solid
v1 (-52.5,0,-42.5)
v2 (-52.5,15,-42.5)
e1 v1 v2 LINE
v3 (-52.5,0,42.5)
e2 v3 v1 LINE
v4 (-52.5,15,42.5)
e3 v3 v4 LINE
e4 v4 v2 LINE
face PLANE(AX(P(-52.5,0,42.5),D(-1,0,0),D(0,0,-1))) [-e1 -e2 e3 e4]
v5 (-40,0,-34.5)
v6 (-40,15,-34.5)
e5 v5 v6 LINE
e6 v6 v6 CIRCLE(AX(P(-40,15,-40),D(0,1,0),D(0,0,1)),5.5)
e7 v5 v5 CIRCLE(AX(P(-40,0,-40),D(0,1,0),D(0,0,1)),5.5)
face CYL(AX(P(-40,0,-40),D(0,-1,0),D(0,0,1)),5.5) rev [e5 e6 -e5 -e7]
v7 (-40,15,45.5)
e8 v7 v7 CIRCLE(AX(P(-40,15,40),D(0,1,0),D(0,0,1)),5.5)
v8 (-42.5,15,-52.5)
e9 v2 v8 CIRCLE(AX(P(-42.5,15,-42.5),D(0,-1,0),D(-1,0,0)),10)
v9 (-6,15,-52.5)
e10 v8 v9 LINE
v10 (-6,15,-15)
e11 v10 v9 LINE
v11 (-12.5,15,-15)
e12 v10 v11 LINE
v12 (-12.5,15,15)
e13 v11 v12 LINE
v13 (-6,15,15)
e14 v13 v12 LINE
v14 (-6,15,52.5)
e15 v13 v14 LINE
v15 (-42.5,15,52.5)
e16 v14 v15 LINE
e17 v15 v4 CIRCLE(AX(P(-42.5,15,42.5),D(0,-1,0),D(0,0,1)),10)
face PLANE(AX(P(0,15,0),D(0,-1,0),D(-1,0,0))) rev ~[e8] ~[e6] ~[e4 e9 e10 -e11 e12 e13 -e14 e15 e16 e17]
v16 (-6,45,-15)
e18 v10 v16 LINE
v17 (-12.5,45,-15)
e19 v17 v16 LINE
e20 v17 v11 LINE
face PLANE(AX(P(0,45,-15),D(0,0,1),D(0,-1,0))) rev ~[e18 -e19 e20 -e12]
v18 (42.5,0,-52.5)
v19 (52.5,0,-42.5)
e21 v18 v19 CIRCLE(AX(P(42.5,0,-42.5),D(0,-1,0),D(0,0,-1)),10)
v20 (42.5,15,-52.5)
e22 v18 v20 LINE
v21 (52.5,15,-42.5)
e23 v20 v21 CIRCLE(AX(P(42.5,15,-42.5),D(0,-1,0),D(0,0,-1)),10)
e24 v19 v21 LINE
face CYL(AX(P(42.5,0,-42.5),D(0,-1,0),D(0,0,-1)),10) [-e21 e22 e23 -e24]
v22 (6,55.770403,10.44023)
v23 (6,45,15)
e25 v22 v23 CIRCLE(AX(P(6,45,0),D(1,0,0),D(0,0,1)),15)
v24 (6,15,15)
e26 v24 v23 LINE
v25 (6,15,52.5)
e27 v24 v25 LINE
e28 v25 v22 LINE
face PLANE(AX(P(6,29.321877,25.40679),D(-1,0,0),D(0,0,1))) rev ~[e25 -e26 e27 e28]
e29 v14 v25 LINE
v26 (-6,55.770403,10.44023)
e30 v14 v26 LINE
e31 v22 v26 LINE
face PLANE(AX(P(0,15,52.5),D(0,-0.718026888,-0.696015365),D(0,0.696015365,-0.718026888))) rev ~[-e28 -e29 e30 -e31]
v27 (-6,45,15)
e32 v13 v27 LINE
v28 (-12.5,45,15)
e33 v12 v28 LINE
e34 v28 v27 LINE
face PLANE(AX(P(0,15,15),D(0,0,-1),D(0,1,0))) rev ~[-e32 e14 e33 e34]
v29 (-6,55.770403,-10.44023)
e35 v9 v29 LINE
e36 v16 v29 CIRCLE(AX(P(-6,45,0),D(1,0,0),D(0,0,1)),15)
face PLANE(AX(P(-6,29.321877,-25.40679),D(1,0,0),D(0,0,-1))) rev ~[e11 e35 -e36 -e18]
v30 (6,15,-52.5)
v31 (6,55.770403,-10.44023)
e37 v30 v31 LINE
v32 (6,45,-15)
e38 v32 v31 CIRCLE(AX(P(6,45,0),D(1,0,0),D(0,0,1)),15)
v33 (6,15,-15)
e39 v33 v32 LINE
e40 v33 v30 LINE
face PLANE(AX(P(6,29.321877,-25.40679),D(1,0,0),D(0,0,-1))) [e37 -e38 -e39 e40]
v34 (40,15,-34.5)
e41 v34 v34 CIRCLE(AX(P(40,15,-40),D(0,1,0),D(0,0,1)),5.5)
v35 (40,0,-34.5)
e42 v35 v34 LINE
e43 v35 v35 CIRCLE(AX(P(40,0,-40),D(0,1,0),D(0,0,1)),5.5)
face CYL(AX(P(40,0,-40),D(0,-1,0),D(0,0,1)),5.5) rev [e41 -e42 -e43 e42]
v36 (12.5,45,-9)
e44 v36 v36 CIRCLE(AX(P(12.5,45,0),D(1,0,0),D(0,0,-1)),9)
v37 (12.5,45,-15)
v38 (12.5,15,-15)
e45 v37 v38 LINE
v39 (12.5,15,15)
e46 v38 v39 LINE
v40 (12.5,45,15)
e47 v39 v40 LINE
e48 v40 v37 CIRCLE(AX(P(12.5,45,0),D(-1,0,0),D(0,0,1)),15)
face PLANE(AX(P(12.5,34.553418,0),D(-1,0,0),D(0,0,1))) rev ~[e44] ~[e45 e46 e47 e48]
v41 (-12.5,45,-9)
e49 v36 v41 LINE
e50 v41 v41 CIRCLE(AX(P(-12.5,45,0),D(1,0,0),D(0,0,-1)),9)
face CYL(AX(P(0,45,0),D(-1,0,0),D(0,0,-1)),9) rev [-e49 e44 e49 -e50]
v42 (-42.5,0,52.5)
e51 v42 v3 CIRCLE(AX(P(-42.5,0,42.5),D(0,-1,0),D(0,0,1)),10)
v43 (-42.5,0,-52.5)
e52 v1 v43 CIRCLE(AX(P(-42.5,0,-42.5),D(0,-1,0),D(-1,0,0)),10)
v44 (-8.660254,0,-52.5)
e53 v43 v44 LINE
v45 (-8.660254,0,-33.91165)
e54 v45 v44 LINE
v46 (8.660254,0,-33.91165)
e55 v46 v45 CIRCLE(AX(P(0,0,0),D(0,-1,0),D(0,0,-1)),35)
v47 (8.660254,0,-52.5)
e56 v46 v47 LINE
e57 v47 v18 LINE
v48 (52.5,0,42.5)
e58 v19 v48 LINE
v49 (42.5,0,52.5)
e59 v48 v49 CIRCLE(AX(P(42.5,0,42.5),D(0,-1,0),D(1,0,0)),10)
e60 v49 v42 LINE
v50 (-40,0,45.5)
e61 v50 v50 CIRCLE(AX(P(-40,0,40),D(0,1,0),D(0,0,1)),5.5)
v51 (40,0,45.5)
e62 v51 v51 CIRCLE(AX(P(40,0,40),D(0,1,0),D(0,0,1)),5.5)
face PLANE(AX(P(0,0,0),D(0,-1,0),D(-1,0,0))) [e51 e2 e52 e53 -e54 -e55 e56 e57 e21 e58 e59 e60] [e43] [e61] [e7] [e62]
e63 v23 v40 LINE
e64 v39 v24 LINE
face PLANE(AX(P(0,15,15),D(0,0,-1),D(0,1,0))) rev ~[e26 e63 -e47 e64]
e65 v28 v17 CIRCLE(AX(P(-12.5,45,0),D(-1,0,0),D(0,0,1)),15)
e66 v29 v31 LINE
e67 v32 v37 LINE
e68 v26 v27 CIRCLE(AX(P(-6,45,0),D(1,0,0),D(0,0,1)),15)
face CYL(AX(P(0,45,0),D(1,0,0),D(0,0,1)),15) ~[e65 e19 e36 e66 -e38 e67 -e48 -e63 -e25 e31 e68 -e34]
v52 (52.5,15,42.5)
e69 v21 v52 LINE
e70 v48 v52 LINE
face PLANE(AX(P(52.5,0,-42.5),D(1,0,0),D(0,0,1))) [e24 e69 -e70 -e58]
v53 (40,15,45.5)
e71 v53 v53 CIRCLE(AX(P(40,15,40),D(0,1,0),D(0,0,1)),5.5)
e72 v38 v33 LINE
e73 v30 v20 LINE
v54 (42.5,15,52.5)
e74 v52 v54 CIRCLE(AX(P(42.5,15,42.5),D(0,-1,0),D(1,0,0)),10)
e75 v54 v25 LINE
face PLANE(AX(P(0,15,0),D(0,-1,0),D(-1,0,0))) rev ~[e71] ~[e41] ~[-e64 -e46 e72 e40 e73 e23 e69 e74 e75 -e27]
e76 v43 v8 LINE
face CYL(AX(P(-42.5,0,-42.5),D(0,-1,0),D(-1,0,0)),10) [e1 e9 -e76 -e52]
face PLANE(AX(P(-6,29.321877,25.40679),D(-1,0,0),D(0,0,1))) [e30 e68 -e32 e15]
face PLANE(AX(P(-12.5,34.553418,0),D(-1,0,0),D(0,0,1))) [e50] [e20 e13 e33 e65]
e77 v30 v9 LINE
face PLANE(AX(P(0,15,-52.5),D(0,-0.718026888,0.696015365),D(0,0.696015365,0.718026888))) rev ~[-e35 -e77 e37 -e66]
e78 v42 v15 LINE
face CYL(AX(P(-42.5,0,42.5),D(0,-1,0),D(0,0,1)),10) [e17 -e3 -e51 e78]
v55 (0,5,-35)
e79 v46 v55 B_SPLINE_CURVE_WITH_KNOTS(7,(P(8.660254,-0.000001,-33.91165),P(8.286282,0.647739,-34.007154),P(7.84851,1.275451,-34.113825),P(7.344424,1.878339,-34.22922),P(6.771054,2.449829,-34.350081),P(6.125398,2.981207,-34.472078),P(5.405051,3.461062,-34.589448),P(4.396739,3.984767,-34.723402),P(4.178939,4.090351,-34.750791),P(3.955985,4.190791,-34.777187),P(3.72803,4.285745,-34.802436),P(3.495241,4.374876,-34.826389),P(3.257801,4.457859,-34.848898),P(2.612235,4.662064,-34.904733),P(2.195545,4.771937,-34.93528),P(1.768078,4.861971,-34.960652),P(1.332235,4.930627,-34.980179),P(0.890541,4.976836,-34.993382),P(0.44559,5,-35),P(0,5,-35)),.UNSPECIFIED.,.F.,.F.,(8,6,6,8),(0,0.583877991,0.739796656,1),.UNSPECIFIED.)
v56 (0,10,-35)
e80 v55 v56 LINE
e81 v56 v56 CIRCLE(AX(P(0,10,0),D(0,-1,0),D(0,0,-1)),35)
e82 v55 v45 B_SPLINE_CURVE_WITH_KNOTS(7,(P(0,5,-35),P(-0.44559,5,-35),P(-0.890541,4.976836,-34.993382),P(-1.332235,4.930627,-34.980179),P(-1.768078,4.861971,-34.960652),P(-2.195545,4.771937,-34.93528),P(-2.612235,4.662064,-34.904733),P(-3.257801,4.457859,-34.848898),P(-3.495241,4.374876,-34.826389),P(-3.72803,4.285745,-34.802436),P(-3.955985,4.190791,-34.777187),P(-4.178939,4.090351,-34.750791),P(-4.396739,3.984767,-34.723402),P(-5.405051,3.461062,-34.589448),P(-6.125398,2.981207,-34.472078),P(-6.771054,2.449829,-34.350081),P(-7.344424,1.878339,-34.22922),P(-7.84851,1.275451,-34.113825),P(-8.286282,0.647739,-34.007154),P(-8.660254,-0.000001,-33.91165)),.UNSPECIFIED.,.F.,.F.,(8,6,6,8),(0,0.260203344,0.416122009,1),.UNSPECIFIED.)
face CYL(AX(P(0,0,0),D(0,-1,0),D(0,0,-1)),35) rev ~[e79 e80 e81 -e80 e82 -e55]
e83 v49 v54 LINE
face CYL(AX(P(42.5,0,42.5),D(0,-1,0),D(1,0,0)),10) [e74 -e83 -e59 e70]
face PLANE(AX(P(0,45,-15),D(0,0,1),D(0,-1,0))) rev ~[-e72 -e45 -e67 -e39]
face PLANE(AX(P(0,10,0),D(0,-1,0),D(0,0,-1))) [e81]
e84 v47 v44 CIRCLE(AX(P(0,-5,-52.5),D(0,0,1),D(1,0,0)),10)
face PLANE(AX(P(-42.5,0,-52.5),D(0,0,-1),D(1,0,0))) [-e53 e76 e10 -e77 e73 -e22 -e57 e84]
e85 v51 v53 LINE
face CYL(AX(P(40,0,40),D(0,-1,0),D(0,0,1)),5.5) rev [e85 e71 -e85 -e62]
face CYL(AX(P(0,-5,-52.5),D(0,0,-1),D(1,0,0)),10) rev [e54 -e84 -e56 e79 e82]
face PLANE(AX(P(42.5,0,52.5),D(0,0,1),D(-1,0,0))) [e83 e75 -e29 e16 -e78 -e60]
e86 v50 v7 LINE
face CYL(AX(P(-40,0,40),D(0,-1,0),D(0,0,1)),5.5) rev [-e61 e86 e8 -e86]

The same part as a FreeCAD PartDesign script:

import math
import FreeCAD as App
import Part
import Sketcher


def add_polygon(sketch, points):
    """Adds a closed chain of lines whose ends are joined by coincident constraints."""
    first, n = sketch.GeometryCount, len(points)
    for a, b in zip(points, points[1:] + points[:1]):
        sketch.addGeometry(Part.LineSegment(App.Vector(*a, 0), App.Vector(*b, 0)), False)
    for i in range(n):
        sketch.addConstraint(Sketcher.Constraint("Coincident", first + i, 2, first + (i + 1) % n, 1))

doc = App.newDocument("Part")
params = doc.addObject("Spreadsheet::Sheet", "Params")
for row, (alias, value) in enumerate([
    ("sketch1_diameter", "11 mm"),
    ("sketch1_radius", "10 mm"),
    ("sketch1_width", "85 mm"),
    ("pad1_length", "15 mm"),
    ("sketch2_diameter", "70 mm"),
    ("pocket1_length", "10 mm"),
    ("sketch3_diameter", "20 mm"),
    ("pocket2_length", "18.58835 mm"),
    ("sketch4_diameter", "18 mm"),
    ("sketch4_radius", "15 mm"),
    ("pad2_length", "25 mm"),
    ("pad3_length", "12 mm"),
], start=1):
    params.set(f"A{row}", alias)
    params.set(f"B{row}", "=" + value)
    params.setAlias(f"B{row}", alias)

body = doc.addObject("PartDesign::Body", "Body")

sketch1 = doc.addObject("Sketcher::SketchObject", "Sketch")
body.addObject(sketch1)
sketch1.AttachmentSupport = (doc.XZ_Plane, [""])
sketch1.MapMode = "FlatFace"
sketch1.addGeometry(Part.LineSegment(App.Vector(-42, 52, 0), App.Vector(42, 52, 0)), False)
sketch1.addGeometry(Part.ArcOfCircle(Part.Circle(App.Vector(42, 42, 0), App.Vector(0, 0, 1), 10), math.radians(0), math.radians(90)), False)
sketch1.addGeometry(Part.LineSegment(App.Vector(52, 42, 0), App.Vector(52, -42, 0)), False)
sketch1.addGeometry(Part.ArcOfCircle(Part.Circle(App.Vector(42, -42, 0), App.Vector(0, 0, 1), 10), math.radians(-90), math.radians(0)), False)
sketch1.addGeometry(Part.LineSegment(App.Vector(42, -52, 0), App.Vector(-42, -52, 0)), False)
sketch1.addGeometry(Part.ArcOfCircle(Part.Circle(App.Vector(-42, -42, 0), App.Vector(0, 0, 1), 10), math.radians(180), math.radians(270)), False)
sketch1.addGeometry(Part.LineSegment(App.Vector(-52, -42, 0), App.Vector(-52, 42, 0)), False)
sketch1.addGeometry(Part.ArcOfCircle(Part.Circle(App.Vector(-42, 42, 0), App.Vector(0, 0, 1), 10), math.radians(90), math.radians(180)), False)
sketch1.addGeometry(Part.Circle(App.Vector(40, 40, 0), App.Vector(0, 0, 1), 6), False)
sketch1.addGeometry(Part.Circle(App.Vector(-40, 40, 0), App.Vector(0, 0, 1), 6), False)
sketch1.addGeometry(Part.Circle(App.Vector(40, -40, 0), App.Vector(0, 0, 1), 6), False)
sketch1.addGeometry(Part.Circle(App.Vector(-40, -40, 0), App.Vector(0, 0, 1), 6), False)
sketch1.addConstraint(Sketcher.Constraint("Tangent", 0, 2, 1, 2))
sketch1.addConstraint(Sketcher.Constraint("Tangent", 1, 1, 2, 1))
sketch1.addConstraint(Sketcher.Constraint("Tangent", 2, 2, 3, 2))
sketch1.addConstraint(Sketcher.Constraint("Tangent", 3, 1, 4, 1))
sketch1.addConstraint(Sketcher.Constraint("Tangent", 4, 2, 5, 2))
sketch1.addConstraint(Sketcher.Constraint("Tangent", 5, 1, 6, 1))
sketch1.addConstraint(Sketcher.Constraint("Tangent", 6, 2, 7, 2))
sketch1.addConstraint(Sketcher.Constraint("Tangent", 7, 1, 0, 1))
sketch1.addConstraint(Sketcher.Constraint("Horizontal", 0))
sketch1.addConstraint(Sketcher.Constraint("Vertical", 2))
sketch1.addConstraint(Sketcher.Constraint("Horizontal", 4))
sketch1.addConstraint(Sketcher.Constraint("Vertical", 6))
sketch1.addConstraint(Sketcher.Constraint("Equal", 1, 3))
sketch1.addConstraint(Sketcher.Constraint("Equal", 3, 5))
sketch1.addConstraint(Sketcher.Constraint("Equal", 5, 7))
sketch1.addConstraint(Sketcher.Constraint("Equal", 8, 9))
sketch1.addConstraint(Sketcher.Constraint("Equal", 9, 10))
sketch1.addConstraint(Sketcher.Constraint("Equal", 10, 11))
sketch1.addConstraint(Sketcher.Constraint("Symmetric", 1, 3, 5, 3, -1, 1))
sketch1.addConstraint(Sketcher.Constraint("Symmetric", 9, 3, 10, 3, -1, 1))
sketch1.addConstraint(Sketcher.Constraint("Symmetric", 8, 3, 11, 3, -1, 1))
sketch1.addConstraint(Sketcher.Constraint("Symmetric", 8, 3, 9, 3, -2))
sketch1.addConstraint(Sketcher.Constraint("Equal", 4, 2))
sketch1.addConstraint(Sketcher.Constraint("Diameter", 8, 11.0))
sketch1.addConstraint(Sketcher.Constraint("Radius", 1, 10.0))
sketch1.addConstraint(Sketcher.Constraint("DistanceX", 0, 1, 0, 2, 85.0))
sketch1.addConstraint(Sketcher.Constraint("DistanceX", -1, 1, 8, 3, 40.0))
sketch1.addConstraint(Sketcher.Constraint("DistanceY", -1, 1, 8, 3, 40.0))
sketch1.setExpression("Constraints[23]", "Params.sketch1_diameter")
sketch1.setExpression("Constraints[24]", "Params.sketch1_radius")
sketch1.setExpression("Constraints[25]", "Params.sketch1_width")
pad1 = doc.addObject("PartDesign::Pad", "Pad")
body.addObject(pad1)
pad1.Profile = sketch1
pad1.setExpression("Length", "Params.pad1_length")
pad1.Reversed = True

sketch2 = doc.addObject("Sketcher::SketchObject", "Sketch001")
body.addObject(sketch2)
sketch2.AttachmentSupport = (doc.XZ_Plane, [""])
sketch2.MapMode = "FlatFace"
sketch2.addGeometry(Part.Circle(App.Vector(0, 0, 0), App.Vector(0, 0, 1), 35), False)
sketch2.addConstraint(Sketcher.Constraint("Coincident", 0, 3, -1, 1))
sketch2.addConstraint(Sketcher.Constraint("Diameter", 0, 70.0))
sketch2.setExpression("Constraints[1]", "Params.sketch2_diameter")
pocket1 = doc.addObject("PartDesign::Pocket", "Pocket")
body.addObject(pocket1)
pocket1.Profile = sketch2
pocket1.setExpression("Length", "Params.pocket1_length")

sketch3 = doc.addObject("Sketcher::SketchObject", "Sketch002")
body.addObject(sketch3)
sketch3.AttachmentSupport = (doc.XY_Plane, [""])
sketch3.MapMode = "FlatFace"
sketch3.AttachmentOffset = App.Placement(App.Vector(0, 0, -52.5), App.Rotation())
sketch3.addGeometry(Part.Circle(App.Vector(0, -5, 0), App.Vector(0, 0, 1), 10), False)
sketch3.addConstraint(Sketcher.Constraint("PointOnObject", 0, 3, -2))
sketch3.addConstraint(Sketcher.Constraint("Diameter", 0, 20.0))
sketch3.addConstraint(Sketcher.Constraint("DistanceY", 0, 3, -1, 1, 5.0))
sketch3.setExpression("Constraints[1]", "Params.sketch3_diameter")
pocket2 = doc.addObject("PartDesign::Pocket", "Pocket001")
body.addObject(pocket2)
pocket2.Profile = sketch3
pocket2.setExpression("Length", "Params.pocket2_length")
pocket2.Reversed = True

sketch4 = doc.addObject("Sketcher::SketchObject", "Sketch003")
body.addObject(sketch4)
sketch4.AttachmentSupport = (doc.YZ_Plane, [""])
sketch4.MapMode = "FlatFace"
sketch4.addGeometry(Part.LineSegment(App.Vector(15, -15, 0), App.Vector(45, -15, 0)), False)
sketch4.addGeometry(Part.ArcOfCircle(Part.Circle(App.Vector(45, 0, 0), App.Vector(0, 0, 1), 15), math.radians(-90), math.radians(90)), False)
sketch4.addGeometry(Part.LineSegment(App.Vector(45, 15, 0), App.Vector(15, 15, 0)), False)
sketch4.addGeometry(Part.LineSegment(App.Vector(15, 15, 0), App.Vector(15, -15, 0)), False)
sketch4.addGeometry(Part.Circle(App.Vector(45, 0, 0), App.Vector(0, 0, 1), 9), False)
sketch4.addConstraint(Sketcher.Constraint("Tangent", 0, 2, 1, 1))
sketch4.addConstraint(Sketcher.Constraint("Tangent", 1, 2, 2, 1))
sketch4.addConstraint(Sketcher.Constraint("Coincident", 2, 2, 3, 1))
sketch4.addConstraint(Sketcher.Constraint("Coincident", 3, 2, 0, 1))
sketch4.addConstraint(Sketcher.Constraint("Horizontal", 0))
sketch4.addConstraint(Sketcher.Constraint("Horizontal", 2))
sketch4.addConstraint(Sketcher.Constraint("Vertical", 3))
sketch4.addConstraint(Sketcher.Constraint("Coincident", 4, 3, 1, 3))
sketch4.addConstraint(Sketcher.Constraint("PointOnObject", 1, 3, -1))
sketch4.addConstraint(Sketcher.Constraint("Equal", 2, 3))
sketch4.addConstraint(Sketcher.Constraint("Diameter", 4, 18.0))
sketch4.addConstraint(Sketcher.Constraint("Radius", 1, 15.0))
sketch4.addConstraint(Sketcher.Constraint("DistanceX", -1, 1, 1, 3, 45.0))
sketch4.setExpression("Constraints[10]", "Params.sketch4_diameter")
sketch4.setExpression("Constraints[11]", "Params.sketch4_radius")
pad2 = doc.addObject("PartDesign::Pad", "Pad001")
body.addObject(pad2)
pad2.Profile = sketch4
pad2.setExpression("Length", "Params.pad2_length")
pad2.Midplane = True

sketch5 = doc.addObject("Sketcher::SketchObject", "Sketch004")
body.addObject(sketch5)
sketch5.AttachmentSupport = (doc.YZ_Plane, [""])
sketch5.MapMode = "FlatFace"
add_polygon(sketch5, [(15, -52), (56, -10), (15, -10)])
add_polygon(sketch5, [(56, 10), (15, 52), (15, 10)])
sketch5.addConstraint(Sketcher.Constraint("Horizontal", 1))
sketch5.addConstraint(Sketcher.Constraint("Vertical", 2))
sketch5.addConstraint(Sketcher.Constraint("Vertical", 4))
sketch5.addConstraint(Sketcher.Constraint("Horizontal", 5))
sketch5.addConstraint(Sketcher.Constraint("Symmetric", 2, 2, 3, 2, -1))
sketch5.addConstraint(Sketcher.Constraint("Symmetric", 0, 2, 5, 2, -1))
sketch5.addConstraint(Sketcher.Constraint("DistanceX", -1, 1, 1, 2, 15.0))
sketch5.addConstraint(Sketcher.Constraint("DistanceY", 2, 2, 3, 2, 105.0))
sketch5.addConstraint(Sketcher.Constraint("DistanceY", 2, 2, 2, 1, 42.05977))
sketch5.addConstraint(Sketcher.Constraint("DistanceX", 1, 2, 1, 1, 40.770403))
pad3 = doc.addObject("PartDesign::Pad", "Pad002")
body.addObject(pad3)
pad3.Profile = sketch5
pad3.setExpression("Length", "Params.pad3_length")
pad3.Midplane = True

doc.recompute()
